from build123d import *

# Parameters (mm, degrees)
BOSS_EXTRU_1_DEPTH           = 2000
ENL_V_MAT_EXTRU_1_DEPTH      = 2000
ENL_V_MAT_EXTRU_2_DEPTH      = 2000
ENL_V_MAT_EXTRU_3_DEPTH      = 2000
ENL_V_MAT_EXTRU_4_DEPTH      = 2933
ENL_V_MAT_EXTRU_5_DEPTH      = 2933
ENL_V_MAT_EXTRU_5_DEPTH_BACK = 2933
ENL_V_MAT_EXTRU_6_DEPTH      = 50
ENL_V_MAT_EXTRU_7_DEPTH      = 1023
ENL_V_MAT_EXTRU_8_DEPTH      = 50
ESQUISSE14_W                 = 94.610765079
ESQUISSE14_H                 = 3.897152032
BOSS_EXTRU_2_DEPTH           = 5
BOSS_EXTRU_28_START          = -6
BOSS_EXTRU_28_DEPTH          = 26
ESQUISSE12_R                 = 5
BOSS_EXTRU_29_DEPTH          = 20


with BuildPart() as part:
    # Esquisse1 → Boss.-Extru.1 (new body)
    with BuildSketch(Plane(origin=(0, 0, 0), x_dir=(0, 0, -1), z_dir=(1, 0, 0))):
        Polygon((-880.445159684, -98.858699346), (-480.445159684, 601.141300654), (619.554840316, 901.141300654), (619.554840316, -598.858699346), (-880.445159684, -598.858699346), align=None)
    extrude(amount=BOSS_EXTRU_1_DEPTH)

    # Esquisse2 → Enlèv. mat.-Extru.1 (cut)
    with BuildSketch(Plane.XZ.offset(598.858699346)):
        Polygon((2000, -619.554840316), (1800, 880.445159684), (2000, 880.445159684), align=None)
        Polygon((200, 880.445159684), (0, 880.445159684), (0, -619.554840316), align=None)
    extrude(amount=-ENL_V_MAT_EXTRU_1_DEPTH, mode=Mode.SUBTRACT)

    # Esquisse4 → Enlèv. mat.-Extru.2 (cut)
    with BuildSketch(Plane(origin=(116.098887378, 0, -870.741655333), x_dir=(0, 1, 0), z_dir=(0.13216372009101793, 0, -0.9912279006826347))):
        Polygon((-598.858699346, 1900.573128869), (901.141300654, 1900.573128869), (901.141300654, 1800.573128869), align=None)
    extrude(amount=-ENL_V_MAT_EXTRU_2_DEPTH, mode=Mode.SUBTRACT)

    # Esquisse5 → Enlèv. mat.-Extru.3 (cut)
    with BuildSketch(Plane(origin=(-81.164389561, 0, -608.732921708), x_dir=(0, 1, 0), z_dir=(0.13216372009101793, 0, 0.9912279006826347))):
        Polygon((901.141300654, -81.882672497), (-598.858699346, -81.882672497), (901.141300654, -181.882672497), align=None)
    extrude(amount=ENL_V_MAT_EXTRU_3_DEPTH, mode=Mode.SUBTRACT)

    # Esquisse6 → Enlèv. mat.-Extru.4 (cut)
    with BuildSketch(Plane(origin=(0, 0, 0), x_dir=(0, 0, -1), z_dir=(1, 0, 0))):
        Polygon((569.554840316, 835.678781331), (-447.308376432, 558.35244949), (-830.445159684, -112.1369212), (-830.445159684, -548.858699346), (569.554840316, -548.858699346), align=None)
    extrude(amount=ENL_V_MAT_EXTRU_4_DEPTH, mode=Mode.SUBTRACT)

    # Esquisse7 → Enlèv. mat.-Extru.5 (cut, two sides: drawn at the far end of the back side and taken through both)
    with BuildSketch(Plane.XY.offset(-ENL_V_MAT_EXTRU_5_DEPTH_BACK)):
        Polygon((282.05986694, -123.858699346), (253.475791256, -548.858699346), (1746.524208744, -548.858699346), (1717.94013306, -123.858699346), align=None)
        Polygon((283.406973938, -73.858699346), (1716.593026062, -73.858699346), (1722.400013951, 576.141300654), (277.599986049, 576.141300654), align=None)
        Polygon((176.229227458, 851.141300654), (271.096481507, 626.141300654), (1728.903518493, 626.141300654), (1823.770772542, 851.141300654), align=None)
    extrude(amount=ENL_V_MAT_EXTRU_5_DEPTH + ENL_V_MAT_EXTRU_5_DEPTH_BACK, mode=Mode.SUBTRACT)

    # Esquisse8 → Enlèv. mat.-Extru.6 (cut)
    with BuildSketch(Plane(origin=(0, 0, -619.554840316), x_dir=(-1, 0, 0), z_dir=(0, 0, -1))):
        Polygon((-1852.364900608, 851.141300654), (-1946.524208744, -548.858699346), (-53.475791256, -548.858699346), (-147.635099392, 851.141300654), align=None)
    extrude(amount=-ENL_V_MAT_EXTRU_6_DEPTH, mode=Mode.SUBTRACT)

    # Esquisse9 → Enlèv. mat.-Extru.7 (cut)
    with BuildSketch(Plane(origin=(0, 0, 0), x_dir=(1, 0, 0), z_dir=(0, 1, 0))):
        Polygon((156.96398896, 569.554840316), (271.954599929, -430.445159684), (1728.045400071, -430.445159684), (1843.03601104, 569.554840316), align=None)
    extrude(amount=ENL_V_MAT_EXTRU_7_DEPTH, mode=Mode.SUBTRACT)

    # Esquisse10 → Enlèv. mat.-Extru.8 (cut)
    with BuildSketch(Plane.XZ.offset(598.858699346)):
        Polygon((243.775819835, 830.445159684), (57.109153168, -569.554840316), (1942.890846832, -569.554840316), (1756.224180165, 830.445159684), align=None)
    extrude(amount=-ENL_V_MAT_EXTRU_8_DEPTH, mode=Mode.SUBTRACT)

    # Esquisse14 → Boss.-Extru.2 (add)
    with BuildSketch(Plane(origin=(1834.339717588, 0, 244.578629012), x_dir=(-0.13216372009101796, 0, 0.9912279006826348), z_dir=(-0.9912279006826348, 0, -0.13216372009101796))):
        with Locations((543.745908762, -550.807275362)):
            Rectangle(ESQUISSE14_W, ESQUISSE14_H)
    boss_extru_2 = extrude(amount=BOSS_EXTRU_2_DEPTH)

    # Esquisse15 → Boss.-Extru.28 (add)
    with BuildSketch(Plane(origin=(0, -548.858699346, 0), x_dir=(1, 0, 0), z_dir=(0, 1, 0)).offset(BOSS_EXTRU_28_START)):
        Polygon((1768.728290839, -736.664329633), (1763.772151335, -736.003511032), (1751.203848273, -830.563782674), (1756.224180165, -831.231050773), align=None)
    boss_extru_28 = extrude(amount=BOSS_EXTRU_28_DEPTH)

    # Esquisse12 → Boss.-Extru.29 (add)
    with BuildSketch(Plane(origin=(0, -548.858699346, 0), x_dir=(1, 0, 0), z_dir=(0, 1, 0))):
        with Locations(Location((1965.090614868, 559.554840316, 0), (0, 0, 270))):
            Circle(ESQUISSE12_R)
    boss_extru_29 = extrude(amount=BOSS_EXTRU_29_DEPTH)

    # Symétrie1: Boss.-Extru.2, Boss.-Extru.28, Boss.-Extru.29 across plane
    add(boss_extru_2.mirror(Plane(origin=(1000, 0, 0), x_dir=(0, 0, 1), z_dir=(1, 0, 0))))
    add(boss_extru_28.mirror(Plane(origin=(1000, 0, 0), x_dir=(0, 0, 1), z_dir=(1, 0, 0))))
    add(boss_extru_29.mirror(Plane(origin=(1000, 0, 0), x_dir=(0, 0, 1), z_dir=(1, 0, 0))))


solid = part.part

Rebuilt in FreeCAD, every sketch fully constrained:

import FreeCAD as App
import Part
import Sketcher
Q = App.Units.Quantity


def add_polygon(sketch, points):
    """Adds a closed chain of lines whose ends are joined by coincident constraints."""
    first, n = sketch.GeometryCount, len(points)
    for a, b in zip(points, points[1:] + points[:1]):
        sketch.addGeometry(Part.LineSegment(App.Vector(*a, 0), App.Vector(*b, 0)), False)
    for i in range(n):
        sketch.addConstraint(Sketcher.Constraint("Coincident", first + i, 2, first + (i + 1) % n, 1))

doc = App.newDocument("Part")
body = doc.addObject("PartDesign::Body", "Body")

# Sketch on YZ plane
sketch1 = body.newObject("Sketcher::SketchObject", "Sketch")
sketch1.AttachmentSupport = (doc.getObject("YZ_Plane"), [""])
sketch1.MapMode = "FlatFace"
add_polygon(sketch1, [(601, 480), (-99, 880), (-599, 880), (-599, -620), (901, -620)])  # lines 0-4
sketch1.addConstraint([
    Sketcher.Constraint("Horizontal", 1),
    Sketcher.Constraint("Vertical", 2),
    Sketcher.Constraint("Horizontal", 3),
    Sketcher.Constraint("Equal", 3, 2),
    Sketcher.Constraint("DistanceX", 1, 2, 1, 1, Q("500 mm")),
    Sketcher.Constraint("DistanceX", 3, 1, 3, 2, Q("1500 mm")),
    Sketcher.Constraint("DistanceX", 0, 2, 4, 2, Q("700 mm")),
    Sketcher.Constraint("DistanceY", 4, 2, 0, 2, Q("400 mm")),
    Sketcher.Constraint("DistanceX", 0, 2, -1, 1, Q("98.858699 mm")),
    Sketcher.Constraint("DistanceY", -1, 1, 0, 2, Q("880.44516 mm")),
])
pad1 = body.newObject("PartDesign::Pad", "Pad")
pad1.Profile = sketch1
pad1.Length = 2000

# Sketch on XZ plane
sketch2 = body.newObject("Sketcher::SketchObject", "Sketch001")
sketch2.AttachmentSupport = (doc.getObject("XZ_Plane"), [""])
sketch2.MapMode = "FlatFace"
sketch2.AttachmentOffset = App.Placement(App.Vector(0, 0, 598.858699), App.Rotation())
add_polygon(sketch2, [(1800, 880), (2000, -620), (2000, 880)])  # lines 0-2
add_polygon(sketch2, [(200, 880), (0, 880), (0, -620)])  # lines 3-5
sketch2.addConstraint([
    Sketcher.Constraint("Vertical", 1),
    Sketcher.Constraint("Horizontal", 2),
    Sketcher.Constraint("Horizontal", 3),
    Sketcher.Constraint("Vertical", 4),
    Sketcher.Constraint("PointOnObject", 3, 2, -2),
    Sketcher.Constraint("Horizontal", 2, 2, 3, 2),
    Sketcher.Constraint("Horizontal", 0, 2, 4, 2),
    Sketcher.Constraint("Equal", 2, 3),
    Sketcher.Constraint("DistanceX", 2, 2, 2, 1, Q("200 mm")),
    Sketcher.Constraint("DistanceY", 1, 1, 1, 2, Q("1500 mm")),
    Sketcher.Constraint("DistanceX", -1, 1, 0, 2, Q("2000 mm")),
    Sketcher.Constraint("DistanceY", 0, 2, -1, 1, Q("619.55484 mm")),
])
pocket1 = body.newObject("PartDesign::Pocket", "Pocket")
pocket1.Profile = sketch2
pocket1.Length = 2000

# Sketch on an angled plane
sketch3 = body.newObject("Sketcher::SketchObject", "Sketch002")
sketch3.Placement = App.Placement(App.Vector(116.098887, 0, -870.741655), App.Rotation(App.Vector(0, 1, 0), App.Vector(0.991227901, 0, 0.13216372), App.Vector(0.13216372, 0, -0.991227901), "ZXY"))
add_polygon(sketch3, [(901, 1901), (-599, 1901), (901, 1801)])  # lines 0-2
sketch3.addConstraint([
    Sketcher.Constraint("Horizontal", 0),
    Sketcher.Constraint("Vertical", 2),
    Sketcher.Constraint("DistanceX", 0, 2, 0, 1, Q("1500 mm")),
    Sketcher.Constraint("DistanceY", 2, 1, 2, 2, Q("100 mm")),
    Sketcher.Constraint("DistanceX", 0, 2, -1, 1, Q("598.858699 mm")),
    Sketcher.Constraint("DistanceY", -1, 1, 0, 2, Q("1900.57313 mm")),
])
pocket2 = body.newObject("PartDesign::Pocket", "Pocket001")
pocket2.Profile = sketch3
pocket2.Length = 2000

# Sketch on an angled plane
sketch4 = body.newObject("Sketcher::SketchObject", "Sketch003")
sketch4.Placement = App.Placement(App.Vector(-81.16439, 0, -608.732922), App.Rotation(App.Vector(0, 1, 0), App.Vector(-0.991227901, 0, 0.13216372), App.Vector(0.13216372, 0, 0.991227901), "ZXY"))
add_polygon(sketch4, [(901, -82), (-599, -82), (901, -182)])  # lines 0-2
sketch4.addConstraint([
    Sketcher.Constraint("Horizontal", 0),
    Sketcher.Constraint("Vertical", 2),
    Sketcher.Constraint("DistanceX", 0, 2, 0, 1, Q("1500 mm")),
    Sketcher.Constraint("DistanceY", 2, 1, 2, 2, Q("100 mm")),
    Sketcher.Constraint("DistanceX", 0, 2, -1, 1, Q("598.858699 mm")),
    Sketcher.Constraint("DistanceY", 0, 2, -1, 1, Q("81.882673 mm")),
])
pocket3 = body.newObject("PartDesign::Pocket", "Pocket002")
pocket3.Profile = sketch4
pocket3.Length = 2000
pocket3.Reversed = True

# Sketch on YZ plane
sketch5 = body.newObject("Sketcher::SketchObject", "Sketch004")
sketch5.AttachmentSupport = (doc.getObject("YZ_Plane"), [""])
sketch5.MapMode = "FlatFace"
add_polygon(sketch5, [(836, -570), (558, 447), (-112, 830), (-549, 830), (-549, -570)])  # lines 0-4
sketch5.addConstraint([
    Sketcher.Constraint("Horizontal", 2),
    Sketcher.Constraint("Vertical", 3),
    Sketcher.Constraint("Horizontal", 4),
    Sketcher.Constraint("DistanceY", 3, 2, 3, 1, Q("1400 mm")),
    Sketcher.Constraint("DistanceX", 2, 2, 2, 1, Q("436.721778 mm")),
    Sketcher.Constraint("DistanceX", 4, 1, 4, 2, Q("1384.537481 mm")),
    Sketcher.Constraint("DistanceX", 2, 2, -1, 1, Q("548.858699 mm")),
    Sketcher.Constraint("DistanceX", -1, 1, 0, 2, Q("558.352449 mm")),
    Sketcher.Constraint("DistanceY", -1, 1, 1, 2, Q("830.44516 mm")),
    Sketcher.Constraint("Distance", 0, Q("1054.002228 mm")),
])
pocket4 = body.newObject("PartDesign::Pocket", "Pocket003")
pocket4.Profile = sketch5
pocket4.Length = 2933
pocket4.Reversed = True

# Sketch on XY plane
sketch6 = body.newObject("Sketcher::SketchObject", "Sketch005")
sketch6.AttachmentSupport = (doc.getObject("XY_Plane"), [""])
sketch6.MapMode = "FlatFace"
add_polygon(sketch6, [(282.059867, -123.858699), (253.475791, -548.858699), (1746.524209, -548.858699), (1717.940133, -123.858699)])  # lines 0-3
add_polygon(sketch6, [(283.406974, -73.858699), (1716.593026, -73.858699), (1722.400014, 576.141301), (277.599986, 576.141301)])  # lines 4-7
add_polygon(sketch6, [(176.229227, 851.141301), (271.096482, 626.141301), (1728.903518, 626.141301), (1823.770773, 851.141301)])  # lines 8-11
sketch6.addConstraint([
    Sketcher.Constraint("Horizontal", 1),
    Sketcher.Constraint("Horizontal", 3),
    Sketcher.Constraint("Horizontal", 4),
    Sketcher.Constraint("Horizontal", 6),
    Sketcher.Constraint("Horizontal", 9),
    Sketcher.Constraint("Horizontal", 11),
    Sketcher.Constraint("Equal", 0, 2),
    Sketcher.Constraint("Equal", 5, 7),
    Sketcher.Constraint("Equal", 8, 10),
    Sketcher.Constraint("DistanceY", 1, 2, 2, 2, Q("425 mm")),
    Sketcher.Constraint("DistanceY", 2, 2, 4, 2, Q("50 mm")),
    Sketcher.Constraint("DistanceY", 4, 2, 5, 2, Q("650 mm")),
    Sketcher.Constraint("DistanceY", 6, 2, 8, 2, Q("50 mm")),
    Sketcher.Constraint("DistanceY", 9, 2, 10, 2, Q("225 mm")),
    Sketcher.Constraint("DistanceY", 0, 2, -1, 1, Q("548.858699 mm")),
    Sketcher.Constraint("Distance", 0, Q("425.96015 mm")),
    Sketcher.Constraint("Distance", 5, Q("650.025939 mm")),
    Sketcher.Constraint("Distance", 8, Q("244.181891 mm")),
    Sketcher.Constraint("DistanceX", 1, 1, 1, 2, Q("1493.048417 mm")),
    Sketcher.Constraint("DistanceX", 4, 1, 4, 2, Q("1433.186052 mm")),
    Sketcher.Constraint("DistanceX", 9, 1, 9, 2, Q("1457.807037 mm")),
    Sketcher.Constraint("DistanceX", -1, 1, 0, 2, Q("253.475791 mm")),
    Sketcher.Constraint("DistanceX", -1, 1, 8, 2, Q("271.096482 mm")),
    Sketcher.Constraint("DistanceX", 3, 2, 4, 2, Q("1434.533159 mm")),
])
pocket5 = body.newObject("PartDesign::Pocket", "Pocket004")
pocket5.Profile = sketch6
pocket5.Type = "ThroughAll"
pocket5.Midplane = True

# Sketch on XY plane
sketch7 = body.newObject("Sketcher::SketchObject", "Sketch006")
sketch7.AttachmentSupport = (doc.getObject("XY_Plane"), [""])
sketch7.MapMode = "FlatFace"
sketch7.AttachmentOffset = App.Placement(App.Vector(0, 0, -619.55484), App.Rotation())
add_polygon(sketch7, [(1852, 851), (1947, -549), (53, -549), (148, 851)])  # lines 0-3
sketch7.addConstraint([
    Sketcher.Constraint("Horizontal", 1),
    Sketcher.Constraint("Horizontal", 3),
    Sketcher.Constraint("Equal", 0, 2),
    Sketcher.Constraint("DistanceY", 1, 2, 2, 2, Q("1400 mm")),
    Sketcher.Constraint("DistanceX", 3, 1, 3, 2, Q("1704.729801 mm")),
    Sketcher.Constraint("DistanceY", 0, 2, -1, 1, Q("548.858699 mm")),
    Sketcher.Constraint("DistanceX", -1, 1, 2, 2, Q("147.635099 mm")),
    Sketcher.Constraint("DistanceX", 1, 2, 1, 1, Q("1893.048417 mm")),
])
pocket6 = body.newObject("PartDesign::Pocket", "Pocket005")
pocket6.Profile = sketch7
pocket6.Length = 50
pocket6.Reversed = True

# Sketch on XZ plane
sketch8 = body.newObject("Sketcher::SketchObject", "Sketch007")
sketch8.AttachmentSupport = (doc.getObject("XZ_Plane"), [""])
sketch8.MapMode = "FlatFace"
add_polygon(sketch8, [(157, -570), (272, 430), (1728, 430), (1843, -570)])  # lines 0-3
sketch8.addConstraint([
    Sketcher.Constraint("Horizontal", 1),
    Sketcher.Constraint("Horizontal", 3),
    Sketcher.Constraint("Equal", 0, 2),
    Sketcher.Constraint("DistanceY", 2, 2, 1, 2, Q("1000 mm")),
    Sketcher.Constraint("DistanceX", 1, 1, 1, 2, Q("1456.0908 mm")),
    Sketcher.Constraint("DistanceX", -1, 1, 0, 2, Q("271.9546 mm")),
    Sketcher.Constraint("Distance", 0, Q("1006.589708 mm")),
    Sketcher.Constraint("DistanceY", -1, 1, 0, 2, Q("430.44516 mm")),
])
pocket7 = body.newObject("PartDesign::Pocket", "Pocket006")
pocket7.Profile = sketch8
pocket7.Length = 1023

# Sketch on XZ plane
sketch9 = body.newObject("Sketcher::SketchObject", "Sketch008")
sketch9.AttachmentSupport = (doc.getObject("XZ_Plane"), [""])
sketch9.MapMode = "FlatFace"
sketch9.AttachmentOffset = App.Placement(App.Vector(0, 0, 598.858699), App.Rotation())
add_polygon(sketch9, [(244, 830), (57, -570), (1943, -570), (1756, 830)])  # lines 0-3
sketch9.addConstraint([
    Sketcher.Constraint("Horizontal", 1),
    Sketcher.Constraint("Horizontal", 3),
    Sketcher.Constraint("Equal", 0, 2),
    Sketcher.Constraint("DistanceY", 1, 2, 2, 2, Q("1400 mm")),
    Sketcher.Constraint("DistanceX", 3, 2, 3, 1, Q("1512.44836 mm")),
    Sketcher.Constraint("DistanceX", 1, 1, 1, 2, Q("1885.781694 mm")),
    Sketcher.Constraint("DistanceY", 0, 2, -1, 1, Q("569.55484 mm")),
    Sketcher.Constraint("DistanceX", -1, 1, 2, 2, Q("1756.22418 mm")),
])
pocket8 = body.newObject("PartDesign::Pocket", "Pocket007")
pocket8.Profile = sketch9
pocket8.Length = 50

# Sketch on an angled plane
sketch10 = body.newObject("Sketcher::SketchObject", "Sketch009")
sketch10.Placement = App.Placement(App.Vector(1834.339718, 0, 244.578629), App.Rotation(App.Vector(-0.13216372, 0, 0.991227901), App.Vector(0, 1.000000001, 0), App.Vector(-0.991227901, 0, -0.13216372), "ZXY"))
add_polygon(sketch10, [(496.4, -548.9), (496.4, -552.8), (591.1, -552.8), (591.1, -548.9)])  # lines 0-3
sketch10.addConstraint([
    Sketcher.Constraint("Vertical", 0),
    Sketcher.Constraint("Horizontal", 1),
    Sketcher.Constraint("Vertical", 2),
    Sketcher.Constraint("Horizontal", 3),
    Sketcher.Constraint("DistanceY", 2, 2, -1, 1, Q("548.8587 mm")),
    Sketcher.Constraint("DistanceX", 1, 1, 1, 2, Q("94.610765 mm")),
    Sketcher.Constraint("DistanceY", 0, 2, 0, 1, Q("3.897152 mm")),
    Sketcher.Constraint("DistanceX", -1, 1, 1, 2, Q("591.051292 mm")),
])
pad2 = body.newObject("PartDesign::Pad", "Pad001")
pad2.Profile = sketch10
pad2.Length = 5

# Sketch on XZ plane
sketch11 = body.newObject("Sketcher::SketchObject", "Sketch010")
sketch11.AttachmentSupport = (doc.getObject("XZ_Plane"), [""])
sketch11.MapMode = "FlatFace"
sketch11.AttachmentOffset = App.Placement(App.Vector(0, 0, 554.858699), App.Rotation())
add_polygon(sketch11, [(1769, 737), (1764, 736), (1751, 831), (1756, 831)])  # lines 0-3
sketch11.addConstraint([
    Sketcher.Constraint("Perpendicular", 1, 2),
    Sketcher.Constraint("Distance", 0, Q("5 mm")),
    Sketcher.Constraint("Distance", 1, Q("95.391861 mm")),
    Sketcher.Constraint("Distance", 3, Q("95.389819 mm")),
    Sketcher.Constraint("DistanceX", -1, 1, 0, 2, Q("1763.772151 mm")),
    Sketcher.Constraint("DistanceY", -1, 1, 0, 2, Q("736.003511 mm")),
    Sketcher.Constraint("DistanceX", -1, 1, 1, 2, Q("1751.203848 mm")),
    Sketcher.Constraint("DistanceX", -1, 1, 2, 2, Q("1756.22418 mm")),
])
pad3 = body.newObject("PartDesign::Pad", "Pad002")
pad3.Profile = sketch11
pad3.Length = 26
pad3.Reversed = True

# Sketch on XZ plane
sketch12 = body.newObject("Sketcher::SketchObject", "Sketch011")
sketch12.AttachmentSupport = (doc.getObject("XZ_Plane"), [""])
sketch12.MapMode = "FlatFace"
sketch12.AttachmentOffset = App.Placement(App.Vector(0, 0, 548.858699), App.Rotation())
sketch12.addGeometry(Part.Circle(App.Vector(1965, -560, 0), App.Vector(0, 0, 1), 5), False)
sketch12.addConstraint([
    Sketcher.Constraint("Diameter", 0, Q("10 mm")),
    Sketcher.Constraint("DistanceY", 0, 3, -1, 1, Q("559.55484 mm")),
    Sketcher.Constraint("DistanceX", -1, 1, 0, 3, Q("1965.090615 mm")),
])
pad4 = body.newObject("PartDesign::Pad", "Pad003")
pad4.Profile = sketch12
pad4.Length = 20
pad4.Reversed = True
doc.recompute()

datumplane = body.newObject("PartDesign::Plane", "DatumPlane")
datumplane.AttachmentSupport = (doc.getObject("YZ_Plane"), [""])
datumplane.MapMode = "FlatFace"
datumplane.AttachmentOffset = App.Placement(App.Vector(0, 0, 1000), App.Rotation())
mirrored = body.newObject("PartDesign::Mirrored", "Mirrored")
mirrored.Originals = [pad2, pad3, pad4]
mirrored.MirrorPlane = (datumplane, [""])
body.Tip = mirrored

doc.recompute()
